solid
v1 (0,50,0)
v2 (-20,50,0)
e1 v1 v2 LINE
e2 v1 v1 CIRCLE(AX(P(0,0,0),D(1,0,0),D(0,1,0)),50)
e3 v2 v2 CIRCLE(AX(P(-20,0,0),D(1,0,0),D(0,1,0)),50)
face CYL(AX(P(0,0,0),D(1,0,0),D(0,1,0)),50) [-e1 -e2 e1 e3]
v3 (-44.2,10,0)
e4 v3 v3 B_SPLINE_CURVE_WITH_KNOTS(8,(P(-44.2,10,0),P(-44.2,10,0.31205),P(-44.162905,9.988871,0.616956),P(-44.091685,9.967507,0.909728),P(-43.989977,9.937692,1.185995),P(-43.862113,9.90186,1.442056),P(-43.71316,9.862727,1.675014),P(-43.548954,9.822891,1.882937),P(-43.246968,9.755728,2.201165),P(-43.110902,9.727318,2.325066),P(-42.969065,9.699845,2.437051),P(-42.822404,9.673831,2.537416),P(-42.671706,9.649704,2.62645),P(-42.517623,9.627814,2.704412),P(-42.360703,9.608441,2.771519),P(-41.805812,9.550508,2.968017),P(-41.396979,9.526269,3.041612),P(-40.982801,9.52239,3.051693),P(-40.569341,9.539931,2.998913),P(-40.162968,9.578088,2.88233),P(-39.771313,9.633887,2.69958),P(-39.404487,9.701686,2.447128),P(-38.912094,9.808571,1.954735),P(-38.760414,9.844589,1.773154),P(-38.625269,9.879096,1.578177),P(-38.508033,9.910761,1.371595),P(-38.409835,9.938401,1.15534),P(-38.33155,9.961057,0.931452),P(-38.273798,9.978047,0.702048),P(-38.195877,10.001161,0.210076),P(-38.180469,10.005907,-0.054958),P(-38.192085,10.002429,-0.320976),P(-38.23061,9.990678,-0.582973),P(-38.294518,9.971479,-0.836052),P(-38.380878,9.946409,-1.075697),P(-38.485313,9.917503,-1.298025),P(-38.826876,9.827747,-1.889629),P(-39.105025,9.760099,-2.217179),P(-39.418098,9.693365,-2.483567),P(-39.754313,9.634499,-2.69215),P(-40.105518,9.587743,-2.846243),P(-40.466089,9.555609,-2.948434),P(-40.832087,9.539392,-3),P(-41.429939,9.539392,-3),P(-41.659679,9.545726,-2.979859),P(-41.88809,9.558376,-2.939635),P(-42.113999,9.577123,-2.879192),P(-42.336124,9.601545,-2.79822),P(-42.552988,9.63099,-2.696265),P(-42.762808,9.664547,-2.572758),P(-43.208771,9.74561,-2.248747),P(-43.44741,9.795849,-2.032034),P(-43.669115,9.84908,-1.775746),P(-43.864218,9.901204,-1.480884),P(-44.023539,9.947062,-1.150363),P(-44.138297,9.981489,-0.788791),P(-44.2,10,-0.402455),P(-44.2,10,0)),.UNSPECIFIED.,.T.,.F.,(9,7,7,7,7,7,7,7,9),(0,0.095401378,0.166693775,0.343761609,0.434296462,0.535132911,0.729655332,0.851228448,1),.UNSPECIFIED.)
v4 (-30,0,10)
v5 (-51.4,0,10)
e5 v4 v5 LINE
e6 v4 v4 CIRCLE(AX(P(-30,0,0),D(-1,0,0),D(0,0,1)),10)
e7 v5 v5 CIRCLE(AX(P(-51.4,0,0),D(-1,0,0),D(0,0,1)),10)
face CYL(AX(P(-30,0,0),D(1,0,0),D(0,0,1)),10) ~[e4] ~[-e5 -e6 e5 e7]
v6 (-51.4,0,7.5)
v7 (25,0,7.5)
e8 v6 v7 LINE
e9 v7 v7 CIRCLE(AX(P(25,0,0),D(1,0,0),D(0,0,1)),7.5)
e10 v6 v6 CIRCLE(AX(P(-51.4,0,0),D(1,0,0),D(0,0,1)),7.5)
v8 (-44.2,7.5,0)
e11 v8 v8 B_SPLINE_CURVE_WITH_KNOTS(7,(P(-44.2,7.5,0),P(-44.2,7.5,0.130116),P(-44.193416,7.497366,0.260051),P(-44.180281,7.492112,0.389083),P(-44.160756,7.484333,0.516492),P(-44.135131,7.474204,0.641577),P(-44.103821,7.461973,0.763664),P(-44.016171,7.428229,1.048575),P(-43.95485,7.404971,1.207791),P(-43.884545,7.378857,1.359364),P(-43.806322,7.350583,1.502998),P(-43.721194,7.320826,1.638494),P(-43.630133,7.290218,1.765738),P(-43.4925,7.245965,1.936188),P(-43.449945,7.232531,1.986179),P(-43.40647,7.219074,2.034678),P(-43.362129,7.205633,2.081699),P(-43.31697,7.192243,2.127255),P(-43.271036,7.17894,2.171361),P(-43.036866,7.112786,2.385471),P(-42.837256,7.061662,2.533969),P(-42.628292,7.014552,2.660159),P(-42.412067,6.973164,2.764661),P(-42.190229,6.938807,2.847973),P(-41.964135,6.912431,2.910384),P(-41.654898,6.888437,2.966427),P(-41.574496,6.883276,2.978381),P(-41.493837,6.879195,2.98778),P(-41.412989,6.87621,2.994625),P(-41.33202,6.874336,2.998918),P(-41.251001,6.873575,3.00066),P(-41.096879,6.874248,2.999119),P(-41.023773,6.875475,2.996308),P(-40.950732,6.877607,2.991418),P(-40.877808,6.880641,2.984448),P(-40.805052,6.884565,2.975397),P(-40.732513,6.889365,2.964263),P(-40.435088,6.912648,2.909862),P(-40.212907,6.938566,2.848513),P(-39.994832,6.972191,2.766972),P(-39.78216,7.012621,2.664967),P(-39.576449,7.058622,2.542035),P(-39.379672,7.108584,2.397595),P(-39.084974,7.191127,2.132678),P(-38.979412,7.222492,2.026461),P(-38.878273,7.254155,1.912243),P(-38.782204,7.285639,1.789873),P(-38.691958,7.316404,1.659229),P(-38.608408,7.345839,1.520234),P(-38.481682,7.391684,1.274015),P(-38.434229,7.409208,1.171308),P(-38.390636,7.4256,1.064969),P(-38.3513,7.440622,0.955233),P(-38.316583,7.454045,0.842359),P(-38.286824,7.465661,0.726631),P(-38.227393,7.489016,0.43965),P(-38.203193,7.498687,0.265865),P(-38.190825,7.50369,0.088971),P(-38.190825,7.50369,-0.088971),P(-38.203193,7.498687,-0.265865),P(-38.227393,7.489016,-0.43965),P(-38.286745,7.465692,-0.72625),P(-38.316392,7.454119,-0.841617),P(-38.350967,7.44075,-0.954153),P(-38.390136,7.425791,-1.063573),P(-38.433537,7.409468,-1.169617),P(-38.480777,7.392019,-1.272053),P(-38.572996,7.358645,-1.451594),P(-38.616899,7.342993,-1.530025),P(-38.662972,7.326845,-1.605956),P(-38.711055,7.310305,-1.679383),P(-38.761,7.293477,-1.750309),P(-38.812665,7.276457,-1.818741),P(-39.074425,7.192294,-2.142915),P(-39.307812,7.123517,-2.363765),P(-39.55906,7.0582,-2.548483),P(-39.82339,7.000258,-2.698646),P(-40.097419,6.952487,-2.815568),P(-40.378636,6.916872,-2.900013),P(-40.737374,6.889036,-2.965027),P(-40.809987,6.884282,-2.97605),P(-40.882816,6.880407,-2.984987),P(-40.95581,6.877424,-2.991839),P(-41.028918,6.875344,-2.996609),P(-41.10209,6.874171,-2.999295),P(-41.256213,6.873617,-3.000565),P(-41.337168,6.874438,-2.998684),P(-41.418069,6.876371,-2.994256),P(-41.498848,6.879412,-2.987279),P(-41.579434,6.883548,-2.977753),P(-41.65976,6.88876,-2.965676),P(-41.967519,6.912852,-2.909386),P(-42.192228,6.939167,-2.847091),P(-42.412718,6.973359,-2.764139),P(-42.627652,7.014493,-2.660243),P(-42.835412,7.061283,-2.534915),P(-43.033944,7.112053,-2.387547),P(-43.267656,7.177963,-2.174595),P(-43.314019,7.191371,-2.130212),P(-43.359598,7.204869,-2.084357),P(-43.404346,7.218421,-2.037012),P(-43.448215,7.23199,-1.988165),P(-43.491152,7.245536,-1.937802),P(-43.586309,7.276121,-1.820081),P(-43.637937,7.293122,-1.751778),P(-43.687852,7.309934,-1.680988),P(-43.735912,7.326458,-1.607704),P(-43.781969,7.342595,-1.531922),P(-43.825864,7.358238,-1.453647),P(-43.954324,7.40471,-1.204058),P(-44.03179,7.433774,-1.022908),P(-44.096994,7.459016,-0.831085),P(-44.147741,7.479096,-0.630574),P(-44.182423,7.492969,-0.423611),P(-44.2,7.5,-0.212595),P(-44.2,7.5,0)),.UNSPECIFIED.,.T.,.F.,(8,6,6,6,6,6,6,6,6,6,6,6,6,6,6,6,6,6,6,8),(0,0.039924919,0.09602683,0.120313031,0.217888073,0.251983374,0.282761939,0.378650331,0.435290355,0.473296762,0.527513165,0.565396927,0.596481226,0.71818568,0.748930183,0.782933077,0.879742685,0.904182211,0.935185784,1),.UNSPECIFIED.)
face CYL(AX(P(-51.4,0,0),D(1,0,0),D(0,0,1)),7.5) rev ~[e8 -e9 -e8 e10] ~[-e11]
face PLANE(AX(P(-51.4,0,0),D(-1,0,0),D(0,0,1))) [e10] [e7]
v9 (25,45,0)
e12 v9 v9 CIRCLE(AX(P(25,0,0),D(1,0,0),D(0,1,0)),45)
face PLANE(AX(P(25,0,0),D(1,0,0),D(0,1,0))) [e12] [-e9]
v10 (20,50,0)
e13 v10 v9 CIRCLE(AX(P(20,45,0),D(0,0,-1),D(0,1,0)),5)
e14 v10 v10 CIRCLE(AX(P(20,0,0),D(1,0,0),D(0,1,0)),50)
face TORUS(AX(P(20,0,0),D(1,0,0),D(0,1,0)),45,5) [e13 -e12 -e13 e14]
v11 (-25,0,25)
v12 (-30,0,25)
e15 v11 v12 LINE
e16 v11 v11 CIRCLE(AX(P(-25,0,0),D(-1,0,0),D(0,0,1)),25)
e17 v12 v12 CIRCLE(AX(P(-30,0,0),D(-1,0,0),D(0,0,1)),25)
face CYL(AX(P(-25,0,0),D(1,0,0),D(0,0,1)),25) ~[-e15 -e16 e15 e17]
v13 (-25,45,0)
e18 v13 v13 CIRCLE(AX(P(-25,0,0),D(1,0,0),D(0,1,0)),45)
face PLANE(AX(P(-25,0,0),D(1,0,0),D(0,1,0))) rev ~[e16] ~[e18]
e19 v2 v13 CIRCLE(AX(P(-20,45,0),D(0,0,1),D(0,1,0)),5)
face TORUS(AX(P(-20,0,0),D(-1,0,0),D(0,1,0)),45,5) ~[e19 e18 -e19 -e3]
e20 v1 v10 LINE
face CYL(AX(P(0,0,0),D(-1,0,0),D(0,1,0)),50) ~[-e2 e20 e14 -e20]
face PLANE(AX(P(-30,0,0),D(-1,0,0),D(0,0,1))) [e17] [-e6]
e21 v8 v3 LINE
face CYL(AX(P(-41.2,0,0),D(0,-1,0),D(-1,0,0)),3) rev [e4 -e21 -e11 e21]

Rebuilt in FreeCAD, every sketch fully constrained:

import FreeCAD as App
import Part
import Sketcher
from FreeCAD import Vector
Q = App.Units.Quantity


def edges_at(feature, points):
    """Names of the edges that pass closest to the given points."""
    edges = feature.Shape.Edges
    near = lambda p: min(range(len(edges)), key=lambda i: edges[i].distToShape(Part.Vertex(*p))[0])
    return sorted({f"Edge{near(p) + 1}" for p in points})

doc = App.newDocument("Part")
body = doc.addObject("PartDesign::Body", "Body")

sketch1 = body.newObject("Sketcher::SketchObject", "Sketch")
sketch1.AttachmentSupport = (doc.getObject("YZ_Plane"), [""])
sketch1.MapMode = "FlatFace"
sketch1.addGeometry(Part.Circle(Vector(0, 0, 0), Vector(0, 0, 1), 50), False)
sketch1.addConstraint(Sketcher.Constraint("Coincident", 0, 3, -1, 1))
sketch1.addConstraint(Sketcher.Constraint("Diameter", 0, Q("100 mm")))
pad1 = body.newObject("PartDesign::Pad", "Pad")
pad1.Profile = sketch1
pad1.Length = 50
pad1.Midplane = True
doc.recompute()

fillet = body.newObject("PartDesign::Fillet", "Fillet")
fillet.Base = (pad1, edges_at(pad1, [(-25, -50, 0), (25, -50, 0)]))
fillet.Radius = 5

sketch2 = body.newObject("Sketcher::SketchObject", "Sketch001")
sketch2.AttachmentSupport = (doc.getObject("YZ_Plane"), [""])
sketch2.MapMode = "FlatFace"
sketch2.AttachmentOffset = App.Placement(Vector(0, 0, -25), App.Rotation())
sketch2.addGeometry(Part.Circle(Vector(0, 0, 0), Vector(0, 0, 1), 25), False)
sketch2.addConstraint(Sketcher.Constraint("Coincident", 0, 3, -1, 1))
sketch2.addConstraint(Sketcher.Constraint("Diameter", 0, Q("50 mm")))
pad2 = body.newObject("PartDesign::Pad", "Pad001")
pad2.Profile = sketch2
pad2.Length = 5
pad2.Reversed = True

sketch3 = body.newObject("Sketcher::SketchObject", "Sketch002")
sketch3.AttachmentSupport = (doc.getObject("YZ_Plane"), [""])
sketch3.MapMode = "FlatFace"
sketch3.AttachmentOffset = App.Placement(Vector(0, 0, -30), App.Rotation())
sketch3.addGeometry(Part.Circle(Vector(0, 0, 0), Vector(0, 0, 1), 10), False)
sketch3.addConstraint(Sketcher.Constraint("Coincident", 0, 3, -1, 1))
sketch3.addConstraint(Sketcher.Constraint("Diameter", 0, Q("20 mm")))
pad3 = body.newObject("PartDesign::Pad", "Pad002")
pad3.Profile = sketch3
pad3.Length = 21.4
pad3.Reversed = True

sketch4 = body.newObject("Sketcher::SketchObject", "Sketch003")
sketch4.AttachmentSupport = (doc.getObject("YZ_Plane"), [""])
sketch4.MapMode = "FlatFace"
sketch4.AttachmentOffset = App.Placement(Vector(0, 0, -51.4), App.Rotation())
sketch4.addGeometry(Part.Circle(Vector(0, 0, 0), Vector(0, 0, 1), 8), False)
sketch4.addConstraint(Sketcher.Constraint("Coincident", 0, 3, -1, 1))
sketch4.addConstraint(Sketcher.Constraint("Diameter", 0, Q("15 mm")))
doc.recompute()
hole = body.newObject("PartDesign::Hole", "Hole")
hole.Profile = sketch4
hole.ThreadType = "None"
hole.Diameter = 15
hole.DepthType = "ThroughAll"
hole.Reversed = True

sketch5 = body.newObject("Sketcher::SketchObject", "Sketch004")
sketch5.AttachmentSupport = (doc.getObject("XZ_Plane"), [""])
sketch5.MapMode = "FlatFace"
sketch5.addGeometry(Part.Circle(Vector(-41.2, 0, 0), Vector(0, 0, 1), 3), False)
sketch5.addConstraint(Sketcher.Constraint("PointOnObject", 0, 3, -1))
sketch5.addConstraint(Sketcher.Constraint("Diameter", 0, Q("6 mm")))
sketch5.addConstraint(Sketcher.Constraint("DistanceX", 0, 3, -1, 1, Q("41.2 mm")))
pocket1 = body.newObject("PartDesign::Pocket", "Pocket")
pocket1.Profile = sketch5
pocket1.Length = 21.4

doc.recompute()
